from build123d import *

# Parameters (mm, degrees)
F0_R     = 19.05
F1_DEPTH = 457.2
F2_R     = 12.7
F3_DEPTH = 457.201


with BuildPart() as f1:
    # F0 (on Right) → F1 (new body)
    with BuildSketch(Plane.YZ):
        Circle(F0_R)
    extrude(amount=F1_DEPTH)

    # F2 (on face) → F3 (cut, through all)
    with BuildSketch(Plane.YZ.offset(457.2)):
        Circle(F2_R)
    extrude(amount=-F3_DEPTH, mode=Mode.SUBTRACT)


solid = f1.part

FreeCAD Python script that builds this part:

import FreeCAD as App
import Part
import Sketcher
from FreeCAD import Vector
Q = App.Units.Quantity

doc = App.newDocument("Part")
body = doc.addObject("PartDesign::Body", "Body")

# Sketch on YZ plane
sketch1 = body.newObject("Sketcher::SketchObject", "Sketch")
sketch1.AttachmentSupport = (doc.getObject("YZ_Plane"), [""])
sketch1.MapMode = "FlatFace"
sketch1.addGeometry(Part.Circle(Vector(0, 0, 0), Vector(0, 0, 1), 19), False)
sketch1.addConstraint([
    Sketcher.Constraint("Coincident", 0, 3, -1, 1),
    Sketcher.Constraint("Diameter", 0, Q("1.5 in")),
])
pad1 = body.newObject("PartDesign::Pad", "Pad")
pad1.Profile = sketch1
pad1.Length = Q("18 in")

# Sketch on YZ plane
sketch2 = body.newObject("Sketcher::SketchObject", "Sketch001")
sketch2.AttachmentSupport = (doc.getObject("YZ_Plane"), [""])
sketch2.MapMode = "FlatFace"
sketch2.AttachmentOffset = App.Placement(Vector(0, 0, 18 * 25.4), App.Rotation())
sketch2.addGeometry(Part.Circle(Vector(0, 0, 0), Vector(0, 0, 1), 13), False)
sketch2.addConstraint([
    Sketcher.Constraint("Coincident", 0, 3, -1, 1),
    Sketcher.Constraint("Diameter", 0, Q("1 in")),
])
pocket1 = body.newObject("PartDesign::Pocket", "Pocket")
pocket1.Profile = sketch2
pocket1.Type = "ThroughAll"

doc.recompute()
